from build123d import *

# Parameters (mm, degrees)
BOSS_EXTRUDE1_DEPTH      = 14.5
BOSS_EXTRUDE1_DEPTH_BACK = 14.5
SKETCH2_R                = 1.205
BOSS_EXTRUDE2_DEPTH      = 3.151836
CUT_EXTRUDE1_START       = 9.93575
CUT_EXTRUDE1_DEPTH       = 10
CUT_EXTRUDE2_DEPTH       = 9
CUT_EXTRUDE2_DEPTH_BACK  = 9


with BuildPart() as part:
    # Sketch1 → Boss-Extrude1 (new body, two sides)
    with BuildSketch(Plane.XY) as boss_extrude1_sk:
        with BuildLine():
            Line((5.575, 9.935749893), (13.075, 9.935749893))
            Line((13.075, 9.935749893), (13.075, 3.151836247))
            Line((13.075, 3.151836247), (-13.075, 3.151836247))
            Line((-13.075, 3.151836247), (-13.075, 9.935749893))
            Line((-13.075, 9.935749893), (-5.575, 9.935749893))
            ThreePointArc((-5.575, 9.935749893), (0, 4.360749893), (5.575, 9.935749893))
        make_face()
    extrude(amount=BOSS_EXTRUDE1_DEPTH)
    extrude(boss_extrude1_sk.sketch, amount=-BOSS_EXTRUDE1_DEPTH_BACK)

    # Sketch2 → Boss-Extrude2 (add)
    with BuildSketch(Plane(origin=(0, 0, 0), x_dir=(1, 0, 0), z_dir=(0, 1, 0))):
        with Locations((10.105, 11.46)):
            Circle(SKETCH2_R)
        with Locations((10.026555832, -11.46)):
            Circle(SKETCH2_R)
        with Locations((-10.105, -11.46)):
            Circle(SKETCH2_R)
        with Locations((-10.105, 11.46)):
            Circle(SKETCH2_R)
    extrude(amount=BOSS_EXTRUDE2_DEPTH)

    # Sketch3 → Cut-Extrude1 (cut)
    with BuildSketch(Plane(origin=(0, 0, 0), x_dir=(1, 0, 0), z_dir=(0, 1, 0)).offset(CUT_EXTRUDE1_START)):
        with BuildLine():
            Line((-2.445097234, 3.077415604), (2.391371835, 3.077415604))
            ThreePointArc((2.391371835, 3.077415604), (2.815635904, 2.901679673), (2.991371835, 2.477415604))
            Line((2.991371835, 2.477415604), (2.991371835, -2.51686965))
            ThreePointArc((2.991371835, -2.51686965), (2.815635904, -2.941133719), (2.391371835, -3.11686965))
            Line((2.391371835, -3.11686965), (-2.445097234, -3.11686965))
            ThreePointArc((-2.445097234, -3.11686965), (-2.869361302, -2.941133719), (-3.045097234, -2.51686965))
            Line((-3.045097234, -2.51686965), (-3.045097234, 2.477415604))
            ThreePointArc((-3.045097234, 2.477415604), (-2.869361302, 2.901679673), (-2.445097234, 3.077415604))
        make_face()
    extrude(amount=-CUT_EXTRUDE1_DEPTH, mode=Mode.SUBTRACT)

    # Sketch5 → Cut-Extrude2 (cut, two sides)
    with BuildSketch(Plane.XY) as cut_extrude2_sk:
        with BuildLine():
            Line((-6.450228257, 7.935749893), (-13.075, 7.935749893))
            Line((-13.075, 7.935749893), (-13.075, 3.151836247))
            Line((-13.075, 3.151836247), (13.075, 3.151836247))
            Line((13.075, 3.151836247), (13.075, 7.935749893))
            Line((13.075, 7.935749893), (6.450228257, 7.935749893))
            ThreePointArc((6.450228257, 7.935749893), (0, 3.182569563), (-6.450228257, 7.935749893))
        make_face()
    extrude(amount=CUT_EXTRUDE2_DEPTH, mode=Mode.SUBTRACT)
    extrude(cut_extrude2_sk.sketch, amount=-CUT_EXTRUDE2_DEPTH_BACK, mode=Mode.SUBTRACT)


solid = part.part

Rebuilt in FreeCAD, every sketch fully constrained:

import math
import FreeCAD as App
import Part
import Sketcher

V = App.Vector

doc = App.newDocument("Part")
body = doc.addObject("PartDesign::Body", "Body")

sketch1 = body.newObject("Sketcher::SketchObject", "Sketch")
sketch1.AttachmentSupport = (doc.getObject("XY_Plane"), [""])
sketch1.MapMode = "FlatFace"
sketch1.addGeometry([
    Part.LineSegment(V(13, 10, 0), V(6, 10, 0)),
    Part.ArcOfCircle(Part.Circle(V(0, 10, 0), V(0, 0, 1), 6), math.radians(180), math.radians(360)),
    Part.LineSegment(V(-6, 10, 0), V(-13, 10, 0)),
    Part.LineSegment(V(-13, 10, 0), V(-13, 3, 0)),
    Part.LineSegment(V(-13, 3, 0), V(13, 3, 0)),
    Part.LineSegment(V(13, 3, 0), V(13, 10, 0)),
], False)
sketch1.addConstraint([
    Sketcher.Constraint("Coincident", 0, 2, 1, 2),
    Sketcher.Constraint("Coincident", 1, 1, 2, 1),
    Sketcher.Constraint("Coincident", 2, 2, 3, 1),
    Sketcher.Constraint("Coincident", 3, 2, 4, 1),
    Sketcher.Constraint("Coincident", 4, 2, 5, 1),
    Sketcher.Constraint("Coincident", 5, 2, 0, 1),
    Sketcher.Constraint("Horizontal", 0),
    Sketcher.Constraint("Horizontal", 2),
    Sketcher.Constraint("Vertical", 3),
    Sketcher.Constraint("Horizontal", 4),
    Sketcher.Constraint("Vertical", 5),
    Sketcher.Constraint("Symmetric", 0, 2, 1, 1, -2),
    Sketcher.Constraint("Horizontal", 1, 3, 0, 2),
    Sketcher.Constraint("Equal", 0, 2),
    Sketcher.Constraint("DistanceX", 0, 2, 0, 1, 7.5),
    Sketcher.Constraint("Radius", 1, 5.575),
    Sketcher.Constraint("DistanceY", 3, 2, 3, 1, 6.783914),
    Sketcher.Constraint("DistanceY", -1, 1, 1, 3, 9.93575),
])
pad1 = body.newObject("PartDesign::Pad", "Pad")
pad1.Profile = sketch1
pad1.Type = "TwoLengths"
pad1.Length = 14.5
pad1.Length2 = 14.5

sketch2 = body.newObject("Sketcher::SketchObject", "Sketch001")
sketch2.AttachmentSupport = (doc.getObject("XZ_Plane"), [""])
sketch2.MapMode = "FlatFace"
sketch2.addGeometry([
    Part.Circle(V(10.1, -11.5, 0), V(0, 0, 1), 1.2),
    Part.Circle(V(10, 11.5, 0), V(0, 0, 1), 1.2),
    Part.Circle(V(-10.1, 11.5, 0), V(0, 0, 1), 1.2),
    Part.Circle(V(-10.1, -11.5, 0), V(0, 0, 1), 1.2),
], False)
sketch2.addConstraint([
    Sketcher.Constraint("Equal", 0, 1),
    Sketcher.Constraint("Equal", 1, 2),
    Sketcher.Constraint("Equal", 2, 3),
    Sketcher.Constraint("Symmetric", 0, 3, 2, 3, -1, 1),
    Sketcher.Constraint("Symmetric", 0, 3, 3, 3, -2),
    Sketcher.Constraint("Horizontal", 1, 3, 2, 3),
    Sketcher.Constraint("Diameter", 0, 2.41),
    Sketcher.Constraint("DistanceY", 0, 3, -1, 1, 11.46),
    Sketcher.Constraint("DistanceX", 2, 3, 0, 3, 20.21),
    Sketcher.Constraint("DistanceX", -1, 1, 1, 3, 10.026556),
])
pad2 = body.newObject("PartDesign::Pad", "Pad001")
pad2.Profile = sketch2
pad2.Length = 3.151836
pad2.Reversed = True

sketch3 = body.newObject("Sketcher::SketchObject", "Sketch002")
sketch3.AttachmentSupport = (doc.getObject("XZ_Plane"), [""])
sketch3.MapMode = "FlatFace"
sketch3.AttachmentOffset = App.Placement(V(0, 0, -9.93575), App.Rotation())
sketch3.addGeometry([
    Part.LineSegment(V(2.4, -3.1, 0), V(-2.4, -3.1, 0)),
    Part.ArcOfCircle(Part.Circle(V(-2.4, -2.5, 0), V(0, 0, 1), 0.6), math.radians(-180), math.radians(-90)),
    Part.LineSegment(V(-3, -2.5, 0), V(-3, 2.5, 0)),
    Part.ArcOfCircle(Part.Circle(V(-2.4, 2.5, 0), V(0, 0, 1), 0.6), math.radians(90), math.radians(180)),
    Part.LineSegment(V(-2.4, 3.1, 0), V(2.4, 3.1, 0)),
    Part.ArcOfCircle(Part.Circle(V(2.4, 2.5, 0), V(0, 0, 1), 0.6), math.radians(0), math.radians(90)),
    Part.LineSegment(V(3, 2.5, 0), V(3, -2.5, 0)),
    Part.ArcOfCircle(Part.Circle(V(2.4, -2.5, 0), V(0, 0, 1), 0.6), math.radians(-90), math.radians(0)),
], False)
sketch3.addConstraint([
    Sketcher.Constraint("Tangent", 0, 2, 1, 2),
    Sketcher.Constraint("Tangent", 1, 1, 2, 1),
    Sketcher.Constraint("Tangent", 2, 2, 3, 2),
    Sketcher.Constraint("Tangent", 3, 1, 4, 1),
    Sketcher.Constraint("Tangent", 4, 2, 5, 2),
    Sketcher.Constraint("Tangent", 5, 1, 6, 1),
    Sketcher.Constraint("Tangent", 6, 2, 7, 2),
    Sketcher.Constraint("Tangent", 7, 1, 0, 1),
    Sketcher.Constraint("Horizontal", 0),
    Sketcher.Constraint("Vertical", 2),
    Sketcher.Constraint("Horizontal", 4),
    Sketcher.Constraint("Vertical", 6),
    Sketcher.Constraint("Equal", 1, 3),
    Sketcher.Constraint("Equal", 3, 5),
    Sketcher.Constraint("Equal", 5, 7),
    Sketcher.Constraint("Radius", 1, 0.6),
    Sketcher.Constraint("DistanceX", 0, 2, 0, 1, 4.836469),
    Sketcher.Constraint("DistanceY", 2, 1, 2, 2, 4.994285),
    Sketcher.Constraint("DistanceY", -1, 1, 3, 3, 2.51687),
    Sketcher.Constraint("DistanceX", -1, 1, 5, 3, 2.391372),
])
pocket1 = body.newObject("PartDesign::Pocket", "Pocket")
pocket1.Profile = sketch3
pocket1.Length = 10
pocket1.Reversed = True

sketch4 = body.newObject("Sketcher::SketchObject", "Sketch003")
sketch4.AttachmentSupport = (doc.getObject("XY_Plane"), [""])
sketch4.MapMode = "FlatFace"
sketch4.addGeometry([
    Part.LineSegment(V(-6.5, 7.9, 0), V(-13.1, 7.9, 0)),
    Part.LineSegment(V(-13.1, 7.9, 0), V(-13.1, 3.2, 0)),
    Part.LineSegment(V(-13.1, 3.2, 0), V(13.1, 3.2, 0)),
    Part.LineSegment(V(13.1, 3.2, 0), V(13.1, 7.9, 0)),
    Part.LineSegment(V(13.1, 7.9, 0), V(6.5, 7.9, 0)),
    Part.ArcOfCircle(Part.Circle(V(0, 9.9, 0), V(0, 0, 1), 6.8), math.radians(-163), math.radians(-17)),
], False)
sketch4.addConstraint([
    Sketcher.Constraint("Coincident", 0, 2, 1, 1),
    Sketcher.Constraint("Coincident", 1, 2, 2, 1),
    Sketcher.Constraint("Coincident", 2, 2, 3, 1),
    Sketcher.Constraint("Coincident", 3, 2, 4, 1),
    Sketcher.Constraint("Coincident", 4, 2, 5, 2),
    Sketcher.Constraint("Coincident", 5, 1, 0, 1),
    Sketcher.Constraint("Horizontal", 0),
    Sketcher.Constraint("Vertical", 1),
    Sketcher.Constraint("Horizontal", 2),
    Sketcher.Constraint("Vertical", 3),
    Sketcher.Constraint("Horizontal", 4),
    Sketcher.Constraint("Symmetric", 0, 2, 3, 2, -2),
    Sketcher.Constraint("PointOnObject", 5, 3, -2),
    Sketcher.Constraint("DistanceY", 0, 2, 5, 3, 2.0),
    Sketcher.Constraint("DistanceX", 2, 1, 2, 2, 26.15),
    Sketcher.Constraint("Radius", 5, 6.75318),
    Sketcher.Constraint("DistanceY", 1, 2, 1, 1, 4.783914),
    Sketcher.Constraint("DistanceY", -1, 1, 5, 3, 9.93575),
])
pocket2 = body.newObject("PartDesign::Pocket", "Pocket001")
pocket2.Profile = sketch4
pocket2.Type = "TwoLengths"
pocket2.Length = 9
pocket2.Length2 = 9
pocket2.Reversed = True

doc.recompute()
